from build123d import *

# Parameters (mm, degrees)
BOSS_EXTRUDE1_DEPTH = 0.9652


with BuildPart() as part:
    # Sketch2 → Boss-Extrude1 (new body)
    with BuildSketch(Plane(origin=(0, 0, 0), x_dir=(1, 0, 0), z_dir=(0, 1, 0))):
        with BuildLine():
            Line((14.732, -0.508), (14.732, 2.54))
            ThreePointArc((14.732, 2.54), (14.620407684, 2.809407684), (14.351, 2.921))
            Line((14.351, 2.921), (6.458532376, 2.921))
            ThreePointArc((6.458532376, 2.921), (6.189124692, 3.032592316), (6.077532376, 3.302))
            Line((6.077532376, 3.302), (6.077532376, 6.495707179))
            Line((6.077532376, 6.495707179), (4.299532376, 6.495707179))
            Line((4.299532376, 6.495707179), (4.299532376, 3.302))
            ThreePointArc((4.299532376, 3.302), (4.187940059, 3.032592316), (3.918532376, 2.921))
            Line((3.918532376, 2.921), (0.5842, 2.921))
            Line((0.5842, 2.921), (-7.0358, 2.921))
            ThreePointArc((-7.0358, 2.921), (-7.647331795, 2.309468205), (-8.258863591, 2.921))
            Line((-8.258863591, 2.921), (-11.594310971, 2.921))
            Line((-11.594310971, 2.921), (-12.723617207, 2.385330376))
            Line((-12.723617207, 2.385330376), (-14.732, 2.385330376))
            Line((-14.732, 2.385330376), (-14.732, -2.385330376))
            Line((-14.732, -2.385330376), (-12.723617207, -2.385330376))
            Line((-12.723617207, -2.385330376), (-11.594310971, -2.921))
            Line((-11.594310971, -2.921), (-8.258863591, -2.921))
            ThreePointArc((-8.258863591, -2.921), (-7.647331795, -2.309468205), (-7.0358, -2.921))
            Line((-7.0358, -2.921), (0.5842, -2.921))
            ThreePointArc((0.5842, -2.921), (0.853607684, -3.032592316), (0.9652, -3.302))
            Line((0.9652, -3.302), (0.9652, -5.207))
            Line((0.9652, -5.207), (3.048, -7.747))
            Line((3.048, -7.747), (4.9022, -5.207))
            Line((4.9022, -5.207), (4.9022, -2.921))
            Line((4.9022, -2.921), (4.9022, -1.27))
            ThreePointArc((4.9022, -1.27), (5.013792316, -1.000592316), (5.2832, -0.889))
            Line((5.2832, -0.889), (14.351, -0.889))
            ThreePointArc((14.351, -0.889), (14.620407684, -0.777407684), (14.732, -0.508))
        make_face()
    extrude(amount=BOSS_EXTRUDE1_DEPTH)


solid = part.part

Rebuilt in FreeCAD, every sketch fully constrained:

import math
import FreeCAD as App
import Part
import Sketcher
Q = App.Units.Quantity

doc = App.newDocument("Part")
body = doc.addObject("PartDesign::Body", "Body")

# Sketch on XZ plane
sketch1 = doc.addObject("Sketcher::SketchObject", "Sketch")
body.addObject(sketch1)
sketch1.AttachmentSupport = (doc.XZ_Plane, [""])
sketch1.MapMode = "FlatFace"
sketch1.addGeometry(Part.LineSegment(App.Vector(14.732, 0.508, 0), App.Vector(14.732, -2.54, 0)), False)
sketch1.addGeometry(Part.ArcOfCircle(Part.Circle(App.Vector(14.351, -2.54, 0), App.Vector(0, 0, 1), 0.381), math.radians(-90), math.radians(0)), False)
sketch1.addGeometry(Part.LineSegment(App.Vector(14.351, -2.921, 0), App.Vector(6.458532, -2.921, 0)), False)
sketch1.addGeometry(Part.ArcOfCircle(Part.Circle(App.Vector(6.458532, -3.302, 0), App.Vector(0, 0, 1), 0.381), math.radians(90), math.radians(180)), False)
sketch1.addGeometry(Part.LineSegment(App.Vector(6.077532, -3.302, 0), App.Vector(6.077532, -6.495707, 0)), False)
sketch1.addGeometry(Part.LineSegment(App.Vector(6.077532, -6.495707, 0), App.Vector(4.299532, -6.495707, 0)), False)
sketch1.addGeometry(Part.LineSegment(App.Vector(4.299532, -6.495707, 0), App.Vector(4.299532, -3.302, 0)), False)
sketch1.addGeometry(Part.ArcOfCircle(Part.Circle(App.Vector(3.918532, -3.302, 0), App.Vector(0, 0, 1), 0.381), math.radians(0), math.radians(90)), False)
sketch1.addGeometry(Part.LineSegment(App.Vector(3.918532, -2.921, 0), App.Vector(-7.0358, -2.921, 0)), False)
sketch1.addGeometry(Part.ArcOfCircle(Part.Circle(App.Vector(-7.647332, -2.921, 0), App.Vector(0, 0, 1), 0.611532), math.radians(0), math.radians(180)), False)
sketch1.addGeometry(Part.LineSegment(App.Vector(-8.258864, -2.921, 0), App.Vector(-11.594311, -2.921, 0)), False)
sketch1.addGeometry(Part.LineSegment(App.Vector(-11.594311, -2.921, 0), App.Vector(-12.723617, -2.38533, 0)), False)
sketch1.addGeometry(Part.LineSegment(App.Vector(-12.723617, -2.38533, 0), App.Vector(-14.732, -2.38533, 0)), False)
sketch1.addGeometry(Part.LineSegment(App.Vector(-14.732, -2.38533, 0), App.Vector(-14.732, 2.38533, 0)), False)
sketch1.addGeometry(Part.LineSegment(App.Vector(-14.732, 2.38533, 0), App.Vector(-12.723617, 2.38533, 0)), False)
sketch1.addGeometry(Part.LineSegment(App.Vector(-12.723617, 2.38533, 0), App.Vector(-11.594311, 2.921, 0)), False)
sketch1.addGeometry(Part.LineSegment(App.Vector(-11.594311, 2.921, 0), App.Vector(-8.258864, 2.921, 0)), False)
sketch1.addGeometry(Part.ArcOfCircle(Part.Circle(App.Vector(-7.647332, 2.921, 0), App.Vector(0, 0, 1), 0.611532), math.radians(180), math.radians(360)), False)
sketch1.addGeometry(Part.LineSegment(App.Vector(-7.0358, 2.921, 0), App.Vector(0.5842, 2.921, 0)), False)
sketch1.addGeometry(Part.ArcOfCircle(Part.Circle(App.Vector(0.5842, 3.302, 0), App.Vector(0, 0, 1), 0.381), math.radians(-90), math.radians(0)), False)
sketch1.addGeometry(Part.LineSegment(App.Vector(0.9652, 3.302, 0), App.Vector(0.9652, 5.207, 0)), False)
sketch1.addGeometry(Part.LineSegment(App.Vector(0.9652, 5.207, 0), App.Vector(3.048, 7.747, 0)), False)
sketch1.addGeometry(Part.LineSegment(App.Vector(3.048, 7.747, 0), App.Vector(4.9022, 5.207, 0)), False)
sketch1.addGeometry(Part.LineSegment(App.Vector(4.9022, 5.207, 0), App.Vector(4.9022, 1.27, 0)), False)
sketch1.addGeometry(Part.ArcOfCircle(Part.Circle(App.Vector(5.2832, 1.27, 0), App.Vector(0, 0, 1), 0.381), math.radians(180), math.radians(270)), False)
sketch1.addGeometry(Part.LineSegment(App.Vector(5.2832, 0.889, 0), App.Vector(14.351, 0.889, 0)), False)
sketch1.addGeometry(Part.ArcOfCircle(Part.Circle(App.Vector(14.351, 0.508, 0), App.Vector(0, 0, 1), 0.381), math.radians(0), math.radians(90)), False)
sketch1.addConstraint(Sketcher.Constraint("Tangent", 0, 2, 1, 2))
sketch1.addConstraint(Sketcher.Constraint("Tangent", 1, 1, 2, 1))
sketch1.addConstraint(Sketcher.Constraint("Tangent", 2, 2, 3, 1))
sketch1.addConstraint(Sketcher.Constraint("Tangent", 3, 2, 4, 1))
sketch1.addConstraint(Sketcher.Constraint("Coincident", 4, 2, 5, 1))
sketch1.addConstraint(Sketcher.Constraint("Coincident", 5, 2, 6, 1))
sketch1.addConstraint(Sketcher.Constraint("Tangent", 6, 2, 7, 1))
sketch1.addConstraint(Sketcher.Constraint("Tangent", 7, 2, 8, 1))
sketch1.addConstraint(Sketcher.Constraint("Coincident", 8, 2, 9, 1))
sketch1.addConstraint(Sketcher.Constraint("Coincident", 9, 2, 10, 1))
sketch1.addConstraint(Sketcher.Constraint("Coincident", 10, 2, 11, 1))
sketch1.addConstraint(Sketcher.Constraint("Coincident", 11, 2, 12, 1))
sketch1.addConstraint(Sketcher.Constraint("Coincident", 12, 2, 13, 1))
sketch1.addConstraint(Sketcher.Constraint("Coincident", 13, 2, 14, 1))
sketch1.addConstraint(Sketcher.Constraint("Coincident", 14, 2, 15, 1))
sketch1.addConstraint(Sketcher.Constraint("Coincident", 15, 2, 16, 1))
sketch1.addConstraint(Sketcher.Constraint("Coincident", 16, 2, 17, 1))
sketch1.addConstraint(Sketcher.Constraint("Coincident", 17, 2, 18, 1))
sketch1.addConstraint(Sketcher.Constraint("Tangent", 18, 2, 19, 1))
sketch1.addConstraint(Sketcher.Constraint("Tangent", 19, 2, 20, 1))
sketch1.addConstraint(Sketcher.Constraint("Coincident", 20, 2, 21, 1))
sketch1.addConstraint(Sketcher.Constraint("Coincident", 21, 2, 22, 1))
sketch1.addConstraint(Sketcher.Constraint("Coincident", 22, 2, 23, 1))
sketch1.addConstraint(Sketcher.Constraint("Tangent", 23, 2, 24, 1))
sketch1.addConstraint(Sketcher.Constraint("Tangent", 24, 2, 25, 1))
sketch1.addConstraint(Sketcher.Constraint("Tangent", 25, 2, 26, 2))
sketch1.addConstraint(Sketcher.Constraint("Tangent", 26, 1, 0, 1))
sketch1.addConstraint(Sketcher.Constraint("Vertical", 0))
sketch1.addConstraint(Sketcher.Constraint("Horizontal", 2))
sketch1.addConstraint(Sketcher.Constraint("Vertical", 4))
sketch1.addConstraint(Sketcher.Constraint("Horizontal", 5))
sketch1.addConstraint(Sketcher.Constraint("Vertical", 6))
sketch1.addConstraint(Sketcher.Constraint("Horizontal", 8))
sketch1.addConstraint(Sketcher.Constraint("Horizontal", 10))
sketch1.addConstraint(Sketcher.Constraint("Horizontal", 12))
sketch1.addConstraint(Sketcher.Constraint("Vertical", 13))
sketch1.addConstraint(Sketcher.Constraint("Horizontal", 14))
sketch1.addConstraint(Sketcher.Constraint("Horizontal", 16))
sketch1.addConstraint(Sketcher.Constraint("Horizontal", 18))
sketch1.addConstraint(Sketcher.Constraint("Vertical", 20))
sketch1.addConstraint(Sketcher.Constraint("Vertical", 23))
sketch1.addConstraint(Sketcher.Constraint("Horizontal", 25))
sketch1.addConstraint(Sketcher.Constraint("Equal", 1, 3))
sketch1.addConstraint(Sketcher.Constraint("Equal", 3, 7))
sketch1.addConstraint(Sketcher.Constraint("Equal", 9, 17))
sketch1.addConstraint(Sketcher.Constraint("Equal", 7, 19))
sketch1.addConstraint(Sketcher.Constraint("Equal", 19, 24))
sketch1.addConstraint(Sketcher.Constraint("Equal", 24, 26))
sketch1.addConstraint(Sketcher.Constraint("Symmetric", 9, 3, 17, 3, -1))
sketch1.addConstraint(Sketcher.Constraint("Symmetric", 11, 2, 14, 2, -1))
sketch1.addConstraint(Sketcher.Constraint("Symmetric", 10, 2, 15, 2, -1))
sketch1.addConstraint(Sketcher.Constraint("Horizontal", 3, 3, 7, 3))
sketch1.addConstraint(Sketcher.Constraint("Horizontal", 9, 3, 1, 1))
sketch1.addConstraint(Sketcher.Constraint("Horizontal", 8, 2, 9, 2))
sketch1.addConstraint(Sketcher.Constraint("Horizontal", 16, 2, 17, 2))
sketch1.addConstraint(Sketcher.Constraint("Horizontal", 20, 2, 22, 2))
sketch1.addConstraint(Sketcher.Constraint("DistanceX", 18, 1, 18, 2, Q("0.3 in")))
sketch1.addConstraint(Sketcher.Constraint("Radius", 1, Q("0.015 in")))
sketch1.addConstraint(Sketcher.Constraint("DistanceX", 5, 2, 5, 1, Q("0.07 in")))
sketch1.addConstraint(Sketcher.Constraint("DistanceY", 0, 2, 0, 1, Q("0.12 in")))
sketch1.addConstraint(Sketcher.Constraint("DistanceY", 1, 3, -1, 1, Q("0.1 in")))
sketch1.addConstraint(Sketcher.Constraint("DistanceY", 20, 2, 21, 2, Q("0.1 in")))
sketch1.addConstraint(Sketcher.Constraint("DistanceX", 25, 1, 25, 2, Q("0.357 in")))
sketch1.addConstraint(Sketcher.Constraint("DistanceY", 20, 1, 20, 2, Q("0.075 in")))
sketch1.addConstraint(Sketcher.Constraint("DistanceX", -1, 1, 0, 2, Q("0.58 in")))
sketch1.addConstraint(Sketcher.Constraint("DistanceX", 12, 2, -1, 1, Q("0.58 in")))
sketch1.addConstraint(Sketcher.Constraint("DistanceX", -1, 1, 21, 2, Q("0.12 in")))
sketch1.addConstraint(Sketcher.Constraint("DistanceX", 19, 2, 24, 3, Q("0.17 in")))
sketch1.addConstraint(Sketcher.Constraint("Radius", 9, 0.611532))
sketch1.addConstraint(Sketcher.Constraint("DistanceY", 13, 1, 13, 2, 4.770661))
sketch1.addConstraint(Sketcher.Constraint("Distance", 11, 1.24991))
sketch1.addConstraint(Sketcher.Constraint("DistanceX", 2, 2, 2, 1, 7.892468))
sketch1.addConstraint(Sketcher.Constraint("DistanceX", 10, 2, 10, 1, 3.335447))
sketch1.addConstraint(Sketcher.Constraint("DistanceY", 4, 2, 4, 1, 3.193707))
pad1 = doc.addObject("PartDesign::Pad", "Pad")
body.addObject(pad1)
pad1.Profile = sketch1
pad1.Length = Q("0.038 in")
pad1.Reversed = True

doc.recompute()
